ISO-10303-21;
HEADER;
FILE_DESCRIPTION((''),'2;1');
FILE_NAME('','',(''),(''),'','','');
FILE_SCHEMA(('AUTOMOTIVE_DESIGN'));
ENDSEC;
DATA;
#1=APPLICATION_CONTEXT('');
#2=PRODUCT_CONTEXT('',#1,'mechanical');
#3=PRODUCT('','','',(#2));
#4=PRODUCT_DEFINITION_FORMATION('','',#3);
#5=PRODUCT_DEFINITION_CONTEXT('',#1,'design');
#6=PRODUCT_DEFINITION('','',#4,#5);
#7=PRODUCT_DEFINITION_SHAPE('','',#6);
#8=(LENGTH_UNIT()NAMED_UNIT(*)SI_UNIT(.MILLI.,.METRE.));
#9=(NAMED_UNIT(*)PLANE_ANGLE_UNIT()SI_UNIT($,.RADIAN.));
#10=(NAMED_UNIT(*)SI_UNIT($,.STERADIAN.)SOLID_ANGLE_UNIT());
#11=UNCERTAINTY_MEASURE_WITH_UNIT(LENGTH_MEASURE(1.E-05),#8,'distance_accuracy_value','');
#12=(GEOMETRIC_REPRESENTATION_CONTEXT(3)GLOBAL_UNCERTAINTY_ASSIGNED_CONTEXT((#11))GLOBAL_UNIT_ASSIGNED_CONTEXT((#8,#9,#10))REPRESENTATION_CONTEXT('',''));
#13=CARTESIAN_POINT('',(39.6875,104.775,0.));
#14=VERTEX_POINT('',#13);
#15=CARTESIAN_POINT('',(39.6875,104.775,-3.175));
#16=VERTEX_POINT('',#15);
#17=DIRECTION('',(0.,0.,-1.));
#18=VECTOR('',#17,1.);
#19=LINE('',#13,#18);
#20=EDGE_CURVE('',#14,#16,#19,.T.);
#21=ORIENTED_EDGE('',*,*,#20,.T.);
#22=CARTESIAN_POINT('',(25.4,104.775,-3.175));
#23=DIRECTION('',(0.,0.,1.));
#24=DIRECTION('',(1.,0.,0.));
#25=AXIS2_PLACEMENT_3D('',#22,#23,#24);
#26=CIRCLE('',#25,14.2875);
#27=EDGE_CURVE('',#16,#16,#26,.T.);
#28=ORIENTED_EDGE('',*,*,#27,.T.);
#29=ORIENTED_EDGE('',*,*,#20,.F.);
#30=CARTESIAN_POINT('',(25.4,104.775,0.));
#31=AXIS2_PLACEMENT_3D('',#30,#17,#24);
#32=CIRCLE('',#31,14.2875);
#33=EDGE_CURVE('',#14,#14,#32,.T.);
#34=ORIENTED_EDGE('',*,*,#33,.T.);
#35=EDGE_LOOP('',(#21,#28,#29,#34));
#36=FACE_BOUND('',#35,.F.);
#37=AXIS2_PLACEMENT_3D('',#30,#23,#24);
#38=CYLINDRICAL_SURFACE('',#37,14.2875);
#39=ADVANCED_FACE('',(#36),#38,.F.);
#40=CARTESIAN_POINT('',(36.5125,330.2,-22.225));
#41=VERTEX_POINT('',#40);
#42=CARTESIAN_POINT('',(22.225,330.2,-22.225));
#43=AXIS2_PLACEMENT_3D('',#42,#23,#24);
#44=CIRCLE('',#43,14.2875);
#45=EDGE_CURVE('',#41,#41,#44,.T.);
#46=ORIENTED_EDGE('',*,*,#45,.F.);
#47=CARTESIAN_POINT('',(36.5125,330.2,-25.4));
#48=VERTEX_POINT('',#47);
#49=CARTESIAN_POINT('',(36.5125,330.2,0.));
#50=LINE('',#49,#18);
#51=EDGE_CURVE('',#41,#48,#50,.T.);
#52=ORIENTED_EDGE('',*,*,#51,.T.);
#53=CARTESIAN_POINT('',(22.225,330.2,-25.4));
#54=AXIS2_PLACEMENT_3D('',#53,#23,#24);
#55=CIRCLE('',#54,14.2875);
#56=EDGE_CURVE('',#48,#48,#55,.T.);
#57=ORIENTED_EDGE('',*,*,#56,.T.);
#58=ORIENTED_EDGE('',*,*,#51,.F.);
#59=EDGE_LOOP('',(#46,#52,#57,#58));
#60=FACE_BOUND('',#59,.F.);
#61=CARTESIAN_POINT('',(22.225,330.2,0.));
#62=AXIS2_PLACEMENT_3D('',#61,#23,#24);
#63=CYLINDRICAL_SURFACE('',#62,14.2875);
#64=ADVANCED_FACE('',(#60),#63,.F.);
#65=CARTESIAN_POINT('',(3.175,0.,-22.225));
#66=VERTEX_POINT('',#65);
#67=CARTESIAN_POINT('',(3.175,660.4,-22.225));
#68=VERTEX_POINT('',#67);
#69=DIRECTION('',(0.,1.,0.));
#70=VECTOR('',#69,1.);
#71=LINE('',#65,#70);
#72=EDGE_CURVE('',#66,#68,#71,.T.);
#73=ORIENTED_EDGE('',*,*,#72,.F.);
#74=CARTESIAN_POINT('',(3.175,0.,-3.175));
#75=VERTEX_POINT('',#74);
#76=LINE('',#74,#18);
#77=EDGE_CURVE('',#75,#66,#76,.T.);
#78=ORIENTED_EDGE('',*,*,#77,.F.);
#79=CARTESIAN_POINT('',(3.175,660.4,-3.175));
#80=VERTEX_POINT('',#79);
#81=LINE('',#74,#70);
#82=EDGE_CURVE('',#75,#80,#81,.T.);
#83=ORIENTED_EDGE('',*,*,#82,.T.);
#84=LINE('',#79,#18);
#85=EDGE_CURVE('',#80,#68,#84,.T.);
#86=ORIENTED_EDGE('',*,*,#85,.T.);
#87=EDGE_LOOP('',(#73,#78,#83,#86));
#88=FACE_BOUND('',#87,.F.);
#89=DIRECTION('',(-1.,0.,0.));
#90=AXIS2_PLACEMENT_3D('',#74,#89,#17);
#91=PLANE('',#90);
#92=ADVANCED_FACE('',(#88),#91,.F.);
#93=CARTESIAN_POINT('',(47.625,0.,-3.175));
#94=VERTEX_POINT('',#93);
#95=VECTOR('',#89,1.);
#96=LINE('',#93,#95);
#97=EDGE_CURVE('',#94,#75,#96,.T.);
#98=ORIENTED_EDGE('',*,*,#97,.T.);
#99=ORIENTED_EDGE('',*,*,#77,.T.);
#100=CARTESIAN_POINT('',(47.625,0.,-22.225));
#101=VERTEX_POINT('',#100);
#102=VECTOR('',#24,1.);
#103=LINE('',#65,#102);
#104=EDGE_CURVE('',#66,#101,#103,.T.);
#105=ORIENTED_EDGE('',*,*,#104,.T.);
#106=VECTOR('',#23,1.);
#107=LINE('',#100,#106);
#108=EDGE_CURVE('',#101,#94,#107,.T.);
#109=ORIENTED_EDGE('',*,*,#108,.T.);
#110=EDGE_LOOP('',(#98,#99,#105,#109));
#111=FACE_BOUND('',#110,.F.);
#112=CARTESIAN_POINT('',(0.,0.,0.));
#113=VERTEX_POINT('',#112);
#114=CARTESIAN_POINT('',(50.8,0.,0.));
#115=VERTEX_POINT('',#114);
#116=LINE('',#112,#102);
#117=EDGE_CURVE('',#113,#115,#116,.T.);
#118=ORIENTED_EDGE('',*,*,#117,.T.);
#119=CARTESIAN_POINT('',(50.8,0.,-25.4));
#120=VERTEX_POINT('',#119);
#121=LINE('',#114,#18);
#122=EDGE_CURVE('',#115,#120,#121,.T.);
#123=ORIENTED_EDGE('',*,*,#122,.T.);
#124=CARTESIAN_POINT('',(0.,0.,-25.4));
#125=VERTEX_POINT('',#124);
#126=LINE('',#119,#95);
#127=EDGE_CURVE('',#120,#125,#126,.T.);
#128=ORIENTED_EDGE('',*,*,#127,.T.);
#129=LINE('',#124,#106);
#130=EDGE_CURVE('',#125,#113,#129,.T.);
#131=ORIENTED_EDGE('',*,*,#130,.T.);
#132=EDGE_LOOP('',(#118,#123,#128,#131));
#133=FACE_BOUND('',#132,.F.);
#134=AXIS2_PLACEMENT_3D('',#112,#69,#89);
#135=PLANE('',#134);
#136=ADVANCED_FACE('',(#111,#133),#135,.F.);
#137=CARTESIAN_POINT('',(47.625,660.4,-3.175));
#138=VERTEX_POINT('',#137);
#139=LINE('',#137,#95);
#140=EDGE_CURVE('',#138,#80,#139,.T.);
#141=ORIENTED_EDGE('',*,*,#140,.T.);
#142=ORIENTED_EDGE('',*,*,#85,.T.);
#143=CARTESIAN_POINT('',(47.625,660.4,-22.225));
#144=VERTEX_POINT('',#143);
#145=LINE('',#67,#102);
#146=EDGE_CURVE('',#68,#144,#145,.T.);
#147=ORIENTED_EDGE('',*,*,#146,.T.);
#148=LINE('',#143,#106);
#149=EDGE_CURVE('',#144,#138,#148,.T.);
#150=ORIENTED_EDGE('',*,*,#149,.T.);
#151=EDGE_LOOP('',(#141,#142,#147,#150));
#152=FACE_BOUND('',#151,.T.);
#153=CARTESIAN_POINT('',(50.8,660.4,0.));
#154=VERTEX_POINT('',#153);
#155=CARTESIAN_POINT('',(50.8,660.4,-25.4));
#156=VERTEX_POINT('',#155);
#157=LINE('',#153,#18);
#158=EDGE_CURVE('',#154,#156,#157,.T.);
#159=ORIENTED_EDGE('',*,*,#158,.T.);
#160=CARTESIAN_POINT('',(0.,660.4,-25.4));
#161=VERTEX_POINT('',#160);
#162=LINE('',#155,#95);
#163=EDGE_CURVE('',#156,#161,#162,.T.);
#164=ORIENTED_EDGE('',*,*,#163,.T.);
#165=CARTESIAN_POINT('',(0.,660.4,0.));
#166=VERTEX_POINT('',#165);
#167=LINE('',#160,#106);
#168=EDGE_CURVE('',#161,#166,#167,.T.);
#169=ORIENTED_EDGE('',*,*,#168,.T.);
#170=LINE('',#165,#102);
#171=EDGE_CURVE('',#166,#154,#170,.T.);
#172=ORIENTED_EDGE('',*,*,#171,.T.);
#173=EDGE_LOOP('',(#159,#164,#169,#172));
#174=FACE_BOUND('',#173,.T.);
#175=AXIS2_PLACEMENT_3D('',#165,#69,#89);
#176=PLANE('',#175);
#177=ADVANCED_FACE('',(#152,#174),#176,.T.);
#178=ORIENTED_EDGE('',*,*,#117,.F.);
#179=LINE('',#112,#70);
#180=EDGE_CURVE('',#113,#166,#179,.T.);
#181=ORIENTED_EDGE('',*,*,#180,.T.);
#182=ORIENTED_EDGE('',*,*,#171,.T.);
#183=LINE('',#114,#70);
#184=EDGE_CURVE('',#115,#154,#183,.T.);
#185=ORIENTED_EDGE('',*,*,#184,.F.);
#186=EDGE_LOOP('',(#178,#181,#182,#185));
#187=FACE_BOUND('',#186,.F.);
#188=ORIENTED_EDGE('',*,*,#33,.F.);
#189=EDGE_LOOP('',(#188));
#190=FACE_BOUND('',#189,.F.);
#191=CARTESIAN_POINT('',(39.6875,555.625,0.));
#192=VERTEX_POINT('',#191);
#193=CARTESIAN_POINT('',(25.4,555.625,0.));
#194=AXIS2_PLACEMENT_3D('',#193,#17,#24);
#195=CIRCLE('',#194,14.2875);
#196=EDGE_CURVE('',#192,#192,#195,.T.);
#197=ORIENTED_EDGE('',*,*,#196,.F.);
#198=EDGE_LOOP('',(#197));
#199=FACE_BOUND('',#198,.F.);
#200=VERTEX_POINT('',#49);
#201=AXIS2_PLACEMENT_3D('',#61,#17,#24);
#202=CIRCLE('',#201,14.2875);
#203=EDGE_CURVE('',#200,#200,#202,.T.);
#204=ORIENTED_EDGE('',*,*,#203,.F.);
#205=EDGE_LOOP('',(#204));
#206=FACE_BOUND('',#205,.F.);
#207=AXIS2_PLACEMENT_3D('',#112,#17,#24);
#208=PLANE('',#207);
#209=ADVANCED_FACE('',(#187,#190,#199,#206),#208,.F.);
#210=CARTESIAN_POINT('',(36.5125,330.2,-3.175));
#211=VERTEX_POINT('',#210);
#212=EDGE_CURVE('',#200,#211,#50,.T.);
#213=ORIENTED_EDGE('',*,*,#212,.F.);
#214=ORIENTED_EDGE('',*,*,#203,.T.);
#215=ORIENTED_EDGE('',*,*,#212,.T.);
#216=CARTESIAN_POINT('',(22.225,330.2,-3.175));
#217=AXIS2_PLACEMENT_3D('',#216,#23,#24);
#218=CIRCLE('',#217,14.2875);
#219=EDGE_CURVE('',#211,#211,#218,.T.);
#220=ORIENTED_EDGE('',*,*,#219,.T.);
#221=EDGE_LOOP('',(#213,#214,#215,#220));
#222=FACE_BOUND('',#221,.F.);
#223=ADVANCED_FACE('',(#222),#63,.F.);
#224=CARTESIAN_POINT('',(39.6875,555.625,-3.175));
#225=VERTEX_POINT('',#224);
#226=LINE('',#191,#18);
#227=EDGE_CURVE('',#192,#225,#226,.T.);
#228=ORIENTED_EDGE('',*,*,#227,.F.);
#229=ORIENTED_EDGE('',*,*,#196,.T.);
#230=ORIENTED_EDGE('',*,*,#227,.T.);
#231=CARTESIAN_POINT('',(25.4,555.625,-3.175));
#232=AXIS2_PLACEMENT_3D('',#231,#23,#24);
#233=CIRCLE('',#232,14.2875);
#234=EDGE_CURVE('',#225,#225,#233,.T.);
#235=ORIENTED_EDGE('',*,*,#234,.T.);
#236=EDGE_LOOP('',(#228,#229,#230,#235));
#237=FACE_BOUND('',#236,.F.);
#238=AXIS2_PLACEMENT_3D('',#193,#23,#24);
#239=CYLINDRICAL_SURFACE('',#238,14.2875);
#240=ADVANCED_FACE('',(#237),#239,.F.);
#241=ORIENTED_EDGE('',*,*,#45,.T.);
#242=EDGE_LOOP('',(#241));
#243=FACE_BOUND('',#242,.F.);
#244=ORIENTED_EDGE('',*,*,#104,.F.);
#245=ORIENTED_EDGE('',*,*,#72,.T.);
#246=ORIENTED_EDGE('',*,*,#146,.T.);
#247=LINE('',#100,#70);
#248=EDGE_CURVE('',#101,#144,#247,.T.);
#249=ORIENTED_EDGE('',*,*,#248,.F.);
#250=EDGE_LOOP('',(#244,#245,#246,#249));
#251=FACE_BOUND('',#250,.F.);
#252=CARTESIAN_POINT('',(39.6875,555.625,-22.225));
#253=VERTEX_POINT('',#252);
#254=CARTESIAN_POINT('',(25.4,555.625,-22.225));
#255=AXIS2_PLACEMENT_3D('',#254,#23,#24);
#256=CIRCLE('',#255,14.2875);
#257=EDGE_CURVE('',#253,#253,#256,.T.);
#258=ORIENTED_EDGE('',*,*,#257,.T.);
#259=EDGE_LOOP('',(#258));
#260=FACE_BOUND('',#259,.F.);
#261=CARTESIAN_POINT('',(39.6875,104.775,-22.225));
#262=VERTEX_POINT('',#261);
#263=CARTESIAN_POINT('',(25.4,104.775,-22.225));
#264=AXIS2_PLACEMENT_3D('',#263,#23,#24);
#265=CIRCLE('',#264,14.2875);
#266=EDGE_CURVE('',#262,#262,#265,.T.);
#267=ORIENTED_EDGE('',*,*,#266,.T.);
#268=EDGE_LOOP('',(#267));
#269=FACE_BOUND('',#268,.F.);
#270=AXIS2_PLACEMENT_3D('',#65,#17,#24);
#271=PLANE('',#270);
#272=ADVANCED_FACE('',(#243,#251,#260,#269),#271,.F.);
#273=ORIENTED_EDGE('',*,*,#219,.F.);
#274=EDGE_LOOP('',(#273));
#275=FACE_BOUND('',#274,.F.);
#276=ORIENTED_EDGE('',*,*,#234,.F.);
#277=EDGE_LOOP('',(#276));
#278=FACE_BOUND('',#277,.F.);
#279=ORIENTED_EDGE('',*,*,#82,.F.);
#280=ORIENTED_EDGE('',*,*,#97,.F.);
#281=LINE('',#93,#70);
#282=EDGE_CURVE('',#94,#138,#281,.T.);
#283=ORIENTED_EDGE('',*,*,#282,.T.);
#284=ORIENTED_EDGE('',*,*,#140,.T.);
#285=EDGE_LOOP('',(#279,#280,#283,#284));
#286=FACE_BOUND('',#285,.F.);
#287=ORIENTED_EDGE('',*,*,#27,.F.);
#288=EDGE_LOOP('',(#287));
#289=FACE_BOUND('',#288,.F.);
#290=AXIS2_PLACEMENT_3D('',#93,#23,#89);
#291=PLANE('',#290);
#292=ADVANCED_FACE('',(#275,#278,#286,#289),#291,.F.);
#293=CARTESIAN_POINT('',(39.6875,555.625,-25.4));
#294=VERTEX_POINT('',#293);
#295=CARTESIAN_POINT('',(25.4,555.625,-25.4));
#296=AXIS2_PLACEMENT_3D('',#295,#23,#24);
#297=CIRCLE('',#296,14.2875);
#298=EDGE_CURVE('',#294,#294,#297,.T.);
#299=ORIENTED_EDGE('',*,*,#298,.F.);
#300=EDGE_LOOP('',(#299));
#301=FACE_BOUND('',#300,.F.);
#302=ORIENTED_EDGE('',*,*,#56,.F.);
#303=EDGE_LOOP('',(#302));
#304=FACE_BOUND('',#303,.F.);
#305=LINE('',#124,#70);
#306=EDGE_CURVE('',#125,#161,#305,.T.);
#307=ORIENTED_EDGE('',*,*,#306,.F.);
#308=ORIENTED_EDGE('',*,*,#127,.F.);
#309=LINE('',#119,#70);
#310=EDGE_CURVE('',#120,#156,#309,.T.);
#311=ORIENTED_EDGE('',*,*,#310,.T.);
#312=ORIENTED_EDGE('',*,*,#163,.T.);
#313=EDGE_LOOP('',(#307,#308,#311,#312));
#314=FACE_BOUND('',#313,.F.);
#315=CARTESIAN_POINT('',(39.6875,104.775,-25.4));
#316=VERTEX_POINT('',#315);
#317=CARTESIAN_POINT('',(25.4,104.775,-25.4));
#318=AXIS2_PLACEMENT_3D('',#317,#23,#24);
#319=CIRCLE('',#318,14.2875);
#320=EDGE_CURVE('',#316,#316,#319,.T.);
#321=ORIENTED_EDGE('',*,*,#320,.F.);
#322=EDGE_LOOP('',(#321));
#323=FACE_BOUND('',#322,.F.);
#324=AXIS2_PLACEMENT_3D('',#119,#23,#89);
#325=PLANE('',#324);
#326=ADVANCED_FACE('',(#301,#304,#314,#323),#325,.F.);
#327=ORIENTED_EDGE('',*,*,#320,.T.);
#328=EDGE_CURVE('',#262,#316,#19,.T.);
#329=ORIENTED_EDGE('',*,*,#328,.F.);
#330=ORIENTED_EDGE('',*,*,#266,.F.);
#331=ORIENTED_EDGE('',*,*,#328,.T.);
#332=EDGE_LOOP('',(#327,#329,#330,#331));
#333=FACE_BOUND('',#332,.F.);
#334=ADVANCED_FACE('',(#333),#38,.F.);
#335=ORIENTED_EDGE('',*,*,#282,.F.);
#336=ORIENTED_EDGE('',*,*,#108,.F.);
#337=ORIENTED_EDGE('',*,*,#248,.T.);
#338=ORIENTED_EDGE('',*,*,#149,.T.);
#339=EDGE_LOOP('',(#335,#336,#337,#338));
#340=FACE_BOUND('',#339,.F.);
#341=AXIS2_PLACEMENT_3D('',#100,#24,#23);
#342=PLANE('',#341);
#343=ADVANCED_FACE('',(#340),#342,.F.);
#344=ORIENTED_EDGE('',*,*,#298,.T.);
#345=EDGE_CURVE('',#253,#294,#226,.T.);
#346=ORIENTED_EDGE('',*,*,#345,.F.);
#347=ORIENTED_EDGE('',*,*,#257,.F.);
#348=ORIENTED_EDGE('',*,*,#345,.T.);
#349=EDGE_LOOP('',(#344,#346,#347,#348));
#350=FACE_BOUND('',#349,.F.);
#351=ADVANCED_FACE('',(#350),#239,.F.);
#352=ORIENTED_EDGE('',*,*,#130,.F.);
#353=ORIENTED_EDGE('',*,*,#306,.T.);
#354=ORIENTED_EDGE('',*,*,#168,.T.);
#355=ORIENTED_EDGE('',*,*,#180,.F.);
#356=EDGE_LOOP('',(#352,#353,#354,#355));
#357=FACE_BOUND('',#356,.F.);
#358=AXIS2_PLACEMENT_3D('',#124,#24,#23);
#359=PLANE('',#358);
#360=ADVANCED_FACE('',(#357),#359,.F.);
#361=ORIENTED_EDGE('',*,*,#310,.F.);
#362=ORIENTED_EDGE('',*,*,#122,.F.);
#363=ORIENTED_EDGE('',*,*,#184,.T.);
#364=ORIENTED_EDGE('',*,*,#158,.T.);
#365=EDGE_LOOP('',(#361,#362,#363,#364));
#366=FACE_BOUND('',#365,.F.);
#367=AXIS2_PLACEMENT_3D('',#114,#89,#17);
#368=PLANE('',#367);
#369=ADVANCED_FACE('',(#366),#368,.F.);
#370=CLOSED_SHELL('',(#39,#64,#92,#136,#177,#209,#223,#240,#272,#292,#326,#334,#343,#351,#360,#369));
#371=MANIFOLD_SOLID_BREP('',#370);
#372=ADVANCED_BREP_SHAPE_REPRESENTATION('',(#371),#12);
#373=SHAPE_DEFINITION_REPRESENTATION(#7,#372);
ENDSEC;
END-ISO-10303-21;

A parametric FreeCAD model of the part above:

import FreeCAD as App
import Part
import Sketcher
Q = App.Units.Quantity

doc = App.newDocument("Part")
params = doc.addObject("Spreadsheet::Sheet", "Params")
for row, (alias, value) in enumerate([
    ("sketch1_width", "2 in"),
    ("sketch1_height", "1 in"),
    ("pad1_length", "26 in"),
    ("sketch2_diameter", "1.125 in"),
    ("pocket1_length", "1 in"),
    ("sketch3_diameter", "1.125 in"),
    ("pocket2_length", "1 in"),
], start=1):
    params.set(f"A{row}", alias)
    params.set(f"B{row}", "=" + value)
    params.setAlias(f"B{row}", alias)

body = doc.addObject("PartDesign::Body", "Body")

# Sketch on XZ plane
sketch1 = body.newObject("Sketcher::SketchObject", "Sketch")
sketch1.AttachmentSupport = (doc.getObject("XZ_Plane"), [""])
sketch1.MapMode = "FlatFace"
sketch1.addGeometry([
    Part.LineSegment(App.Vector(0, -25.4, 0), App.Vector(0, 0, 0)),  # 0
    Part.LineSegment(App.Vector(0, 0, 0), App.Vector(50.8, 0, 0)),  # 1
    Part.LineSegment(App.Vector(50.8, 0, 0), App.Vector(50.8, -25.4, 0)),  # 2
    Part.LineSegment(App.Vector(50.8, -25.4, 0), App.Vector(0, -25.4, 0)),  # 3
    Part.LineSegment(App.Vector(3.175, -3.175, 0), App.Vector(3.175, -22.225, 0)),  # 4
    Part.LineSegment(App.Vector(3.175, -22.225, 0), App.Vector(47.625, -22.225, 0)),  # 5
    Part.LineSegment(App.Vector(47.625, -22.225, 0), App.Vector(47.625, -3.175, 0)),  # 6
    Part.LineSegment(App.Vector(47.625, -3.175, 0), App.Vector(3.175, -3.175, 0)),  # 7
], False)
sketch1.addConstraint([
    Sketcher.Constraint("Coincident", 0, 2, 1, 1),
    Sketcher.Constraint("Coincident", 1, 2, 2, 1),
    Sketcher.Constraint("Coincident", 2, 2, 3, 1),
    Sketcher.Constraint("Coincident", 3, 2, 0, 1),
    Sketcher.Constraint("Coincident", 4, 2, 5, 1),
    Sketcher.Constraint("Coincident", 5, 2, 6, 1),
    Sketcher.Constraint("Coincident", 6, 2, 7, 1),
    Sketcher.Constraint("Coincident", 7, 2, 4, 1),
    Sketcher.Constraint("Vertical", 0),
    Sketcher.Constraint("Horizontal", 1),
    Sketcher.Constraint("Vertical", 2),
    Sketcher.Constraint("Horizontal", 3),
    Sketcher.Constraint("Vertical", 4),
    Sketcher.Constraint("Horizontal", 5),
    Sketcher.Constraint("Vertical", 6),
    Sketcher.Constraint("Horizontal", 7),
    Sketcher.Constraint("Coincident", 0, 2, -1, 1),
    Sketcher.Constraint("DistanceX", 1, 1, 1, 2, Q("2 in")),
    Sketcher.Constraint("DistanceY", 0, 1, 0, 2, Q("1 in")),
    Sketcher.Constraint("DistanceX", -1, 1, 4, 2, Q("0.125 in")),
    Sketcher.Constraint("DistanceY", 6, 2, -1, 1, Q("0.125 in")),
    Sketcher.Constraint("DistanceY", 3, 2, 4, 2, Q("0.125 in")),
    Sketcher.Constraint("DistanceX", 5, 2, 2, 2, Q("0.125 in")),
])
sketch1.setExpression("Constraints[17]", "Params.sketch1_width")
sketch1.setExpression("Constraints[18]", "Params.sketch1_height")
pad1 = body.newObject("PartDesign::Pad", "Pad")
pad1.Profile = sketch1
pad1.setExpression("Length", "Params.pad1_length")
pad1.Reversed = True

# Sketch on XY plane
sketch2 = body.newObject("Sketcher::SketchObject", "Sketch001")
sketch2.AttachmentSupport = (doc.getObject("XY_Plane"), [""])
sketch2.MapMode = "FlatFace"
sketch2.addGeometry(Part.Circle(App.Vector(22.225, 330.2, 0), App.Vector(0, 0, 1), 14.2875), False)
sketch2.addConstraint([
    Sketcher.Constraint("Diameter", 0, Q("1.125 in")),
    Sketcher.Constraint("DistanceY", -1, 1, 0, 3, Q("13 in")),
    Sketcher.Constraint("DistanceX", -1, 1, 0, 3, Q("0.875 in")),
])
sketch2.setExpression("Constraints[0]", "Params.sketch2_diameter")
pocket1 = body.newObject("PartDesign::Pocket", "Pocket")
pocket1.Profile = sketch2
pocket1.setExpression("Length", "Params.pocket1_length")

# Sketch on XY plane
sketch3 = body.newObject("Sketcher::SketchObject", "Sketch002")
sketch3.AttachmentSupport = (doc.getObject("XY_Plane"), [""])
sketch3.MapMode = "FlatFace"
sketch3.addGeometry([
    Part.Circle(App.Vector(25.4, 104.775, 0), App.Vector(0, 0, 1), 14.2875),
    Part.Circle(App.Vector(25.4, 555.625, 0), App.Vector(0, 0, 1), 14.2875),
], False)
sketch3.addConstraint([
    Sketcher.Constraint("Equal", 0, 1),
    Sketcher.Constraint("Vertical", 0, 3, 1, 3),
    Sketcher.Constraint("Diameter", 0, Q("1.125 in")),
    Sketcher.Constraint("DistanceX", -1, 1, 0, 3, Q("1 in")),
    Sketcher.Constraint("DistanceY", 0, 3, 1, 3, Q("17.75 in")),
    Sketcher.Constraint("DistanceY", -1, 1, 0, 3, Q("4.125 in")),
])
sketch3.setExpression("Constraints[2]", "Params.sketch3_diameter")
pocket2 = body.newObject("PartDesign::Pocket", "Pocket001")
pocket2.Profile = sketch3
pocket2.setExpression("Length", "Params.pocket2_length")

doc.recompute()
